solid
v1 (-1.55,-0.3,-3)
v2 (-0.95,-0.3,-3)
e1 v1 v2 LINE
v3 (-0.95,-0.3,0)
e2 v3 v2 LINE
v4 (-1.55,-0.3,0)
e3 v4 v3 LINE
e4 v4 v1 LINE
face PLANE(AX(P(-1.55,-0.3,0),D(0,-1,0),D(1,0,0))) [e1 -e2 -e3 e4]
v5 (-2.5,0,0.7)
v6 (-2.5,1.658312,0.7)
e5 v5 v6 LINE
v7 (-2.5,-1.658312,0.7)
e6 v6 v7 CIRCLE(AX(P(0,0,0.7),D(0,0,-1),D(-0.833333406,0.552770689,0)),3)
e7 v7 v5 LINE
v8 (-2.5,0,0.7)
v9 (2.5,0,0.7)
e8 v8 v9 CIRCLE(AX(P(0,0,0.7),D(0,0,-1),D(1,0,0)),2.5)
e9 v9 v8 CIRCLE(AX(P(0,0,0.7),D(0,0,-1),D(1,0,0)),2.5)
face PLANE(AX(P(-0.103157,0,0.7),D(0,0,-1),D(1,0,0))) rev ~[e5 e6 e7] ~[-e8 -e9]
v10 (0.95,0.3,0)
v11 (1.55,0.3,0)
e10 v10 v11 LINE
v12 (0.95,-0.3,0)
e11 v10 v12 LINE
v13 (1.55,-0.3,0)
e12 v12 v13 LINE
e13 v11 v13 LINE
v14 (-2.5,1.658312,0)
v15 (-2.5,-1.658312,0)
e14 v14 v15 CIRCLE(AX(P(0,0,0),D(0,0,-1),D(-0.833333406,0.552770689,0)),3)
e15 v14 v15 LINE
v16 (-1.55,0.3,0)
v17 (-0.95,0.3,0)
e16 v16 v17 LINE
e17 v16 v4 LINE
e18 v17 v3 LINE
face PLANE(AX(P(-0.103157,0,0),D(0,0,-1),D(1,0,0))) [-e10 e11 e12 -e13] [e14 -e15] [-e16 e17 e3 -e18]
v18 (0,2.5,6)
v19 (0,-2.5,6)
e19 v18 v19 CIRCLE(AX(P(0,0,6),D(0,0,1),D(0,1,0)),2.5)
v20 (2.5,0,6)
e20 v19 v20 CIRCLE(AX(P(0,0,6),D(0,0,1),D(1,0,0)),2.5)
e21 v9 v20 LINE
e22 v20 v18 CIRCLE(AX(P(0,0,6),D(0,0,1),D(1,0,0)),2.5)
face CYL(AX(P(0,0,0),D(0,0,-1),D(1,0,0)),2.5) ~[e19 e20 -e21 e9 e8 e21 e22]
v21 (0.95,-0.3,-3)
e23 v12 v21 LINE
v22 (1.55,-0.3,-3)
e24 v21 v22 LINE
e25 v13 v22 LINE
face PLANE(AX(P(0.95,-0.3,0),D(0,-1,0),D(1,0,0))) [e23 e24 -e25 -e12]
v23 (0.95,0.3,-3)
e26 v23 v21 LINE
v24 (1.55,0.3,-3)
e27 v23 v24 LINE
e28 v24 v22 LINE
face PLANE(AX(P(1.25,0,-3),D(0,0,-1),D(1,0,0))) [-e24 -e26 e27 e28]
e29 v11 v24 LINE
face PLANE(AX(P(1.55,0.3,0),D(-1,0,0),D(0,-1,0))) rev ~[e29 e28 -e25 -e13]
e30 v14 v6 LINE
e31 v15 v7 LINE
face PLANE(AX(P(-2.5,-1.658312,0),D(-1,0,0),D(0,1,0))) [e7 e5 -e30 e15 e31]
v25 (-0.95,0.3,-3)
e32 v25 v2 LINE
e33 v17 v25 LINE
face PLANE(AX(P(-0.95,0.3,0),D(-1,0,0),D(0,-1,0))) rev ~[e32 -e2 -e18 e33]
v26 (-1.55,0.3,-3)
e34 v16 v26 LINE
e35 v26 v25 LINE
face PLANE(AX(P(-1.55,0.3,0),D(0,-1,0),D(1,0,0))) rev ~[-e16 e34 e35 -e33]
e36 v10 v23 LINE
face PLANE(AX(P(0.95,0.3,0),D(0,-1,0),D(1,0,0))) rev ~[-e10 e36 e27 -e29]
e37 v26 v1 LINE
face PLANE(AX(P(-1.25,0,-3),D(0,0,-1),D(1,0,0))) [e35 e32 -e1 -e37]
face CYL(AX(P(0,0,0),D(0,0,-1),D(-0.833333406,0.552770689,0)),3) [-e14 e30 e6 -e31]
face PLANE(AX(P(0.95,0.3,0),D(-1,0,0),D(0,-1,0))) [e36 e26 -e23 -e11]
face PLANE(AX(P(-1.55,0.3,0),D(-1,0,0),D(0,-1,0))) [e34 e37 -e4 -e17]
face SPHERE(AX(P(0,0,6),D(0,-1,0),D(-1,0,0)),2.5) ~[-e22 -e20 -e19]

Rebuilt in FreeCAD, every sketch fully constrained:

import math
import FreeCAD as App
import Part
import Sketcher
Q = App.Units.Quantity

doc = App.newDocument("Part")
params = doc.addObject("Spreadsheet::Sheet", "Params")
for row, (alias, value) in enumerate([
    ("sketch1_diameter", "5 mm"),
    ("pad1_length", "6 mm"),
    ("sketch2_radius", "2.5 mm"),
    ("revolution_angle", "360 deg"),
    ("sketch3_radius", "3 mm"),
    ("pad2_length", "0.7 mm"),
    ("sketch4_width", "0.6 mm"),
    ("pad3_length", "3 mm"),
], start=1):
    params.set(f"A{row}", alias)
    params.set(f"B{row}", "=" + value)
    params.setAlias(f"B{row}", alias)

body = doc.addObject("PartDesign::Body", "Body")

sketch1 = doc.addObject("Sketcher::SketchObject", "Sketch")
body.addObject(sketch1)
sketch1.AttachmentSupport = (doc.XY_Plane, [""])
sketch1.MapMode = "FlatFace"
sketch1.addGeometry(Part.Circle(App.Vector(0, 0, 0), App.Vector(0, 0, 1), 2.5), False)
sketch1.addConstraint([
    Sketcher.Constraint("Coincident", 0, 3, -1, 1),
    Sketcher.Constraint("Diameter", 0, Q("5 mm")),
])
sketch1.setExpression("Constraints[1]", "Params.sketch1_diameter")
pad1 = doc.addObject("PartDesign::Pad", "Pad")
body.addObject(pad1)
pad1.Profile = sketch1
pad1.setExpression("Length", "Params.pad1_length")

sketch2 = doc.addObject("Sketcher::SketchObject", "Sketch001")
body.addObject(sketch2)
sketch2.AttachmentSupport = (doc.XY_Plane, [""])
sketch2.MapMode = "FlatFace"
sketch2.AttachmentOffset = App.Placement(App.Vector(0, 0, 6), App.Rotation())
sketch2.addGeometry([
    Part.ArcOfCircle(Part.Circle(App.Vector(0, 0, 0), App.Vector(0, 0, 1), 2.5), math.radians(90), math.radians(270)),
    Part.LineSegment(App.Vector(0, -2.5, 0), App.Vector(0, 2.5, 0)),
], False)
sketch2.addConstraint([
    Sketcher.Constraint("Coincident", 0, 1, 1, 2),
    Sketcher.Constraint("Coincident", 1, 1, 0, 2),
    Sketcher.Constraint("Vertical", 1),
    Sketcher.Constraint("Coincident", 0, 3, -1, 1),
    Sketcher.Constraint("PointOnObject", 0, 1, -2),
    Sketcher.Constraint("Radius", 0, Q("2.5 mm")),
])
sketch2.setExpression("Constraints[5]", "Params.sketch2_radius")
revolution = doc.addObject("PartDesign::Revolution", "Revolution")
body.addObject(revolution)
revolution.Profile = sketch2
revolution.ReferenceAxis = (sketch2, ["V_Axis"])
revolution.setExpression("Angle", "Params.revolution_angle")

sketch3 = doc.addObject("Sketcher::SketchObject", "Sketch002")
body.addObject(sketch3)
sketch3.AttachmentSupport = (doc.XY_Plane, [""])
sketch3.MapMode = "FlatFace"
sketch3.addGeometry([
    Part.LineSegment(App.Vector(-2.5, -1.7, 0), App.Vector(-2.5, 1.7, 0)),
    Part.ArcOfCircle(Part.Circle(App.Vector(0, 0, 0), App.Vector(0, 0, 1), 3), math.radians(-146), math.radians(146)),
], False)
sketch3.addConstraint([
    Sketcher.Constraint("Coincident", 0, 1, 1, 1),
    Sketcher.Constraint("Coincident", 1, 2, 0, 2),
    Sketcher.Constraint("Vertical", 0),
    Sketcher.Constraint("Coincident", 1, 3, -1, 1),
    Sketcher.Constraint("Radius", 1, Q("3 mm")),
    Sketcher.Constraint("DistanceX", 0, 1, -1, 1, Q("2.5 mm")),
])
sketch3.setExpression("Constraints[4]", "Params.sketch3_radius")
pad2 = doc.addObject("PartDesign::Pad", "Pad001")
body.addObject(pad2)
pad2.Profile = sketch3
pad2.setExpression("Length", "Params.pad2_length")

sketch4 = doc.addObject("Sketcher::SketchObject", "Sketch003")
body.addObject(sketch4)
sketch4.AttachmentSupport = (doc.XY_Plane, [""])
sketch4.MapMode = "FlatFace"
sketch4.addGeometry([
    Part.LineSegment(App.Vector(0.9, -0.3, 0), App.Vector(0.9, 0.3, 0)),
    Part.LineSegment(App.Vector(0.9, 0.3, 0), App.Vector(1.6, 0.3, 0)),
    Part.LineSegment(App.Vector(1.6, 0.3, 0), App.Vector(1.6, -0.3, 0)),
    Part.LineSegment(App.Vector(1.6, -0.3, 0), App.Vector(0.9, -0.3, 0)),
    Part.LineSegment(App.Vector(-1.6, -0.3, 0), App.Vector(-1.6, 0.3, 0)),
    Part.LineSegment(App.Vector(-1.6, 0.3, 0), App.Vector(-0.9, 0.3, 0)),
    Part.LineSegment(App.Vector(-0.9, 0.3, 0), App.Vector(-0.9, -0.3, 0)),
    Part.LineSegment(App.Vector(-0.9, -0.3, 0), App.Vector(-1.6, -0.3, 0)),
], False)
sketch4.addConstraint([
    Sketcher.Constraint("Coincident", 0, 2, 1, 1),
    Sketcher.Constraint("Coincident", 1, 2, 2, 1),
    Sketcher.Constraint("Coincident", 2, 2, 3, 1),
    Sketcher.Constraint("Coincident", 3, 2, 0, 1),
    Sketcher.Constraint("Coincident", 4, 2, 5, 1),
    Sketcher.Constraint("Coincident", 5, 2, 6, 1),
    Sketcher.Constraint("Coincident", 6, 2, 7, 1),
    Sketcher.Constraint("Coincident", 7, 2, 4, 1),
    Sketcher.Constraint("Vertical", 0),
    Sketcher.Constraint("Horizontal", 1),
    Sketcher.Constraint("Vertical", 2),
    Sketcher.Constraint("Horizontal", 3),
    Sketcher.Constraint("Vertical", 4),
    Sketcher.Constraint("Horizontal", 5),
    Sketcher.Constraint("Vertical", 6),
    Sketcher.Constraint("Horizontal", 7),
    Sketcher.Constraint("Symmetric", 2, 2, 4, 2, -1, 1),
    Sketcher.Constraint("Symmetric", 0, 2, 6, 2, -1, 1),
    Sketcher.Constraint("Horizontal", 1, 2, 4, 2),
    Sketcher.Constraint("Equal", 7, 0),
    Sketcher.Constraint("DistanceX", 1, 1, 1, 2, Q("0.6 mm")),
    Sketcher.Constraint("DistanceX", 4, 2, 0, 2, Q("2.5 mm")),
])
sketch4.setExpression("Constraints[20]", "Params.sketch4_width")
pad3 = doc.addObject("PartDesign::Pad", "Pad002")
body.addObject(pad3)
pad3.Profile = sketch4
pad3.setExpression("Length", "Params.pad3_length")
pad3.Reversed = True

doc.recompute()
